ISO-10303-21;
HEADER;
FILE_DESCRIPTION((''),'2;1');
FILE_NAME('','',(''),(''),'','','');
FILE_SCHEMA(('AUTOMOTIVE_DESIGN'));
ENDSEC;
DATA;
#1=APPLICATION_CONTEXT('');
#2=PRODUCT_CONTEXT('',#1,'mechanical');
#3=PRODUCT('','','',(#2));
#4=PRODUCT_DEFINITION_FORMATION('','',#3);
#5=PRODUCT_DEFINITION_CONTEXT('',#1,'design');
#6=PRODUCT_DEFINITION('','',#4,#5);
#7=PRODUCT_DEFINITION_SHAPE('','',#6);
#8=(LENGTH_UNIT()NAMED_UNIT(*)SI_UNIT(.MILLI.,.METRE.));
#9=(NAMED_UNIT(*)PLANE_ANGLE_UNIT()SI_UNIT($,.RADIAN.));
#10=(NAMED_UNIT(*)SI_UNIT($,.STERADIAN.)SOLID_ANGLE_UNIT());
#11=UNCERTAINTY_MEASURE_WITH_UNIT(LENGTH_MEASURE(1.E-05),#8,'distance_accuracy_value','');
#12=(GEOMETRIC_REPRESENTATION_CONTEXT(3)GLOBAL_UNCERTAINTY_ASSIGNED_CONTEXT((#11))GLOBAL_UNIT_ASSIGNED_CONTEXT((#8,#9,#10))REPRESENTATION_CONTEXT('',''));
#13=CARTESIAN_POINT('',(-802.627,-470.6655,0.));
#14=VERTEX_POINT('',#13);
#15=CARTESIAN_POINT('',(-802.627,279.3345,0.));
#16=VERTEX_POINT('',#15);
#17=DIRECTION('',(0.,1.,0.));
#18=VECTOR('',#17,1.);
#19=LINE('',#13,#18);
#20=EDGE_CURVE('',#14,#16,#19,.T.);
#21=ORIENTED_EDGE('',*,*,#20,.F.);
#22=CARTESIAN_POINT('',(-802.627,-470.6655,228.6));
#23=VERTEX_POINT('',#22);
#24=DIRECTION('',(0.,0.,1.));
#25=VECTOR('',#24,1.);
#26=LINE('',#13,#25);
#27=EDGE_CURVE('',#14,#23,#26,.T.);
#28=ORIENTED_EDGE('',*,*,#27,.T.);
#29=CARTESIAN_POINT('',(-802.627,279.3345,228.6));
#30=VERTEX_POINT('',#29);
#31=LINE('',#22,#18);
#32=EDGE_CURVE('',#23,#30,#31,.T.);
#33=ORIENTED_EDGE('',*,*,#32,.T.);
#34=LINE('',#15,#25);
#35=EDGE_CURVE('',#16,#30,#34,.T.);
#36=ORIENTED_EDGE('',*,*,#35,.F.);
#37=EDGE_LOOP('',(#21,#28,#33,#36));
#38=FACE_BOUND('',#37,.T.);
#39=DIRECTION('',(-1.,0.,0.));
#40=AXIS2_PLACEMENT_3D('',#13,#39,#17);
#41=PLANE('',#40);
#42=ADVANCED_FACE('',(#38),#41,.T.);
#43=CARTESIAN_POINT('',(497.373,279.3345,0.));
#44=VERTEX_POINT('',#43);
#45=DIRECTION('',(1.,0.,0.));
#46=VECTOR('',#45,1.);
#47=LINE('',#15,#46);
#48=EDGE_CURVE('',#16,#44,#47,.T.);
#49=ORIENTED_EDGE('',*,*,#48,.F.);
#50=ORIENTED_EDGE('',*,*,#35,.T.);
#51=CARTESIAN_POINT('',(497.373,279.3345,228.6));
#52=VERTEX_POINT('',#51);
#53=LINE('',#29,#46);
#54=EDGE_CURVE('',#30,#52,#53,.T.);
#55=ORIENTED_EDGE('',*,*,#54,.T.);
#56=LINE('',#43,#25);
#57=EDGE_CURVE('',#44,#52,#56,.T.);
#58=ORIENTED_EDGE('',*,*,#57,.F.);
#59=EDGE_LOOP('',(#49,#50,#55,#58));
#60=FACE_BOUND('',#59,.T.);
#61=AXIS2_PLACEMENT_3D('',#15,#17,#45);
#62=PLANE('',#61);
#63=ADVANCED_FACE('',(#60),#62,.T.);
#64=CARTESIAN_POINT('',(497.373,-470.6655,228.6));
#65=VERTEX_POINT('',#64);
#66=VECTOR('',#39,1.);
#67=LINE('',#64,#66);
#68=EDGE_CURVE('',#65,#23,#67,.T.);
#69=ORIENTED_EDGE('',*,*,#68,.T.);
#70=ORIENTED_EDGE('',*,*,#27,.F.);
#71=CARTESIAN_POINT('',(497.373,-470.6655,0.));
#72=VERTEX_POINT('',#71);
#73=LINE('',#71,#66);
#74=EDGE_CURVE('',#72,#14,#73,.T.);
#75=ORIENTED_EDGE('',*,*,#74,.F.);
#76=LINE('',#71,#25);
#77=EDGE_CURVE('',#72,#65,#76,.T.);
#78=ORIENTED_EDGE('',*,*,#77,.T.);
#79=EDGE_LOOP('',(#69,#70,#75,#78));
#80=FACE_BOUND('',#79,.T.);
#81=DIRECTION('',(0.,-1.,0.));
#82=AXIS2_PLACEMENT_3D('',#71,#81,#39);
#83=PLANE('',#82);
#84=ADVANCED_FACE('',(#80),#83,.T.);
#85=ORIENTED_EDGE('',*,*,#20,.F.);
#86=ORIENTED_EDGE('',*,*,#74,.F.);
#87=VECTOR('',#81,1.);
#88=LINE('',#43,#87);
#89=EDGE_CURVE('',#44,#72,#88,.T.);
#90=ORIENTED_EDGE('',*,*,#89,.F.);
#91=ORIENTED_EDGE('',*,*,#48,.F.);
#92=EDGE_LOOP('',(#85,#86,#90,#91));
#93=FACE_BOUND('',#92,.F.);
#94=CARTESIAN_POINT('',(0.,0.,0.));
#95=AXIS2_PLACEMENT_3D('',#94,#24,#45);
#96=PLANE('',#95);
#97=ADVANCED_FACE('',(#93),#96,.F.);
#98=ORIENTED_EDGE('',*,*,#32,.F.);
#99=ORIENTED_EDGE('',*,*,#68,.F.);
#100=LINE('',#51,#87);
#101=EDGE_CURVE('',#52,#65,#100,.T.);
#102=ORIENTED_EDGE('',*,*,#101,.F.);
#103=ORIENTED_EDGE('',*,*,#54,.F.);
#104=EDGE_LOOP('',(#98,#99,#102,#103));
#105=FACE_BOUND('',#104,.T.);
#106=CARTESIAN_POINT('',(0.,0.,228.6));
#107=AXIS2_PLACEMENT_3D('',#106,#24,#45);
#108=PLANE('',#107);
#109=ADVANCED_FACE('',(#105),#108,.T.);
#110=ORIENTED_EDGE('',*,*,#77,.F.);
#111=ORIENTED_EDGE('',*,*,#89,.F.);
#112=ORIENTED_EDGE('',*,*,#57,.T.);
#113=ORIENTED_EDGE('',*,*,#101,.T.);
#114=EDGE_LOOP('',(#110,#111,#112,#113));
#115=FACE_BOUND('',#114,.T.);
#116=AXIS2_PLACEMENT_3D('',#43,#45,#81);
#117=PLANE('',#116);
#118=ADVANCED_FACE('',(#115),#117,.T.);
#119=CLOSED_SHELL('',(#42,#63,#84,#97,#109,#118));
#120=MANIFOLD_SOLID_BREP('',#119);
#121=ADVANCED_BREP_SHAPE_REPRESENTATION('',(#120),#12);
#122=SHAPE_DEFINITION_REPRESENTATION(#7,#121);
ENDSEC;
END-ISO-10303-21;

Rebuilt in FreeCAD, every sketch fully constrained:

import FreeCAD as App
import Part
import Sketcher
Q = App.Units.Quantity


def add_polygon(sketch, points):
    """Adds a closed chain of lines whose ends are joined by coincident constraints."""
    first, n = sketch.GeometryCount, len(points)
    for a, b in zip(points, points[1:] + points[:1]):
        sketch.addGeometry(Part.LineSegment(App.Vector(*a, 0), App.Vector(*b, 0)), False)
    for i in range(n):
        sketch.addConstraint(Sketcher.Constraint("Coincident", first + i, 2, first + (i + 1) % n, 1))

doc = App.newDocument("Part")
body = doc.addObject("PartDesign::Body", "Body")

# Sketch on XY plane
sketch1 = body.newObject("Sketcher::SketchObject", "Sketch")
sketch1.AttachmentSupport = (doc.getObject("XY_Plane"), [""])
sketch1.MapMode = "FlatFace"
add_polygon(sketch1, [(497, 279), (-803, 279), (-803, -471), (497, -471)])  # lines 0-3
sketch1.addConstraint(Sketcher.Constraint("Horizontal", 0))
sketch1.addConstraint(Sketcher.Constraint("Vertical", 1))
sketch1.addConstraint(Sketcher.Constraint("Horizontal", 2))
sketch1.addConstraint(Sketcher.Constraint("Vertical", 3))
sketch1.addConstraint(Sketcher.Constraint("DistanceX", 0, 2, 0, 1, Q("1300 mm")))
sketch1.addConstraint(Sketcher.Constraint("DistanceY", 1, 2, 1, 1, Q("750 mm")))
sketch1.addConstraint(Sketcher.Constraint("DistanceX", 0, 2, -1, 1, Q("802.627 mm")))
sketch1.addConstraint(Sketcher.Constraint("DistanceY", -1, 1, 0, 2, Q("279.3345 mm")))
pad1 = body.newObject("PartDesign::Pad", "Pad")
pad1.Profile = sketch1
pad1.Length = 228.6

doc.recompute()
